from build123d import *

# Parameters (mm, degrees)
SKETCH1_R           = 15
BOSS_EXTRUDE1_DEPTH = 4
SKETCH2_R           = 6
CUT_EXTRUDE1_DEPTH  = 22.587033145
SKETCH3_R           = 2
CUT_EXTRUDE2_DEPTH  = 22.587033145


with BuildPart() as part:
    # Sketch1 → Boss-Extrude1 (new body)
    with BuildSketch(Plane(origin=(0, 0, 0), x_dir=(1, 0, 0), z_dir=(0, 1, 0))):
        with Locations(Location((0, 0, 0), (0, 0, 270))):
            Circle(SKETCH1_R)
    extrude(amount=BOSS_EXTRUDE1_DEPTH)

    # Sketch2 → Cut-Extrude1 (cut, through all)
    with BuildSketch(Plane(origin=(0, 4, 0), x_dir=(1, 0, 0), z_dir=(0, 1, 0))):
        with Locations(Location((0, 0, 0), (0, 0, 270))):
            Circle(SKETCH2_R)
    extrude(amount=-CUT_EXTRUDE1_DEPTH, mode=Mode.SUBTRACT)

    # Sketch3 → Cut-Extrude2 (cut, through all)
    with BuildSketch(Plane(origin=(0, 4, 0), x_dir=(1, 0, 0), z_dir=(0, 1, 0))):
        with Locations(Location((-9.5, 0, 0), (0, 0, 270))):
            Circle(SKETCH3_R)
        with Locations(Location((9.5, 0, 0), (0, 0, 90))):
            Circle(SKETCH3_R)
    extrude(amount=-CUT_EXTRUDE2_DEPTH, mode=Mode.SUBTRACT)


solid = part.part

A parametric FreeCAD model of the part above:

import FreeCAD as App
import Part
import Sketcher

V = App.Vector

doc = App.newDocument("Part")
body = doc.addObject("PartDesign::Body", "Body")

sketch1 = body.newObject("Sketcher::SketchObject", "Sketch")
sketch1.AttachmentSupport = (doc.getObject("XZ_Plane"), [""])
sketch1.MapMode = "FlatFace"
sketch1.addGeometry(Part.Circle(V(0, 0, 0), V(0, 0, 1), 15), False)
sketch1.addConstraint(Sketcher.Constraint("Coincident", 0, 3, -1, 1))
sketch1.addConstraint(Sketcher.Constraint("Diameter", 0, 30.0))
pad1 = body.newObject("PartDesign::Pad", "Pad")
pad1.Profile = sketch1
pad1.Length = 4
pad1.Reversed = True

sketch2 = body.newObject("Sketcher::SketchObject", "Sketch001")
sketch2.AttachmentSupport = (doc.getObject("XZ_Plane"), [""])
sketch2.MapMode = "FlatFace"
sketch2.AttachmentOffset = App.Placement(V(0, 0, -4), App.Rotation())
sketch2.addGeometry(Part.Circle(V(0, 0, 0), V(0, 0, 1), 6), False)
sketch2.addConstraint(Sketcher.Constraint("Coincident", 0, 3, -1, 1))
sketch2.addConstraint(Sketcher.Constraint("Diameter", 0, 12.0))
pocket1 = body.newObject("PartDesign::Pocket", "Pocket")
pocket1.Profile = sketch2
pocket1.Type = "ThroughAll"
pocket1.Reversed = True

sketch3 = body.newObject("Sketcher::SketchObject", "Sketch002")
sketch3.AttachmentSupport = (doc.getObject("XZ_Plane"), [""])
sketch3.MapMode = "FlatFace"
sketch3.AttachmentOffset = App.Placement(V(0, 0, -4), App.Rotation())
sketch3.addGeometry(Part.Circle(V(-9.5, 0, 0), V(0, 0, 1), 2), False)
sketch3.addGeometry(Part.Circle(V(9.5, 0, 0), V(0, 0, 1), 2), False)
sketch3.addConstraint(Sketcher.Constraint("Equal", 0, 1))
sketch3.addConstraint(Sketcher.Constraint("Symmetric", 0, 3, 1, 3, -1, 1))
sketch3.addConstraint(Sketcher.Constraint("PointOnObject", 0, 3, -1))
sketch3.addConstraint(Sketcher.Constraint("Diameter", 0, 4.0))
sketch3.addConstraint(Sketcher.Constraint("DistanceX", 0, 3, 1, 3, 19.0))
pocket2 = body.newObject("PartDesign::Pocket", "Pocket001")
pocket2.Profile = sketch3
pocket2.Type = "ThroughAll"
pocket2.Reversed = True

doc.recompute()
